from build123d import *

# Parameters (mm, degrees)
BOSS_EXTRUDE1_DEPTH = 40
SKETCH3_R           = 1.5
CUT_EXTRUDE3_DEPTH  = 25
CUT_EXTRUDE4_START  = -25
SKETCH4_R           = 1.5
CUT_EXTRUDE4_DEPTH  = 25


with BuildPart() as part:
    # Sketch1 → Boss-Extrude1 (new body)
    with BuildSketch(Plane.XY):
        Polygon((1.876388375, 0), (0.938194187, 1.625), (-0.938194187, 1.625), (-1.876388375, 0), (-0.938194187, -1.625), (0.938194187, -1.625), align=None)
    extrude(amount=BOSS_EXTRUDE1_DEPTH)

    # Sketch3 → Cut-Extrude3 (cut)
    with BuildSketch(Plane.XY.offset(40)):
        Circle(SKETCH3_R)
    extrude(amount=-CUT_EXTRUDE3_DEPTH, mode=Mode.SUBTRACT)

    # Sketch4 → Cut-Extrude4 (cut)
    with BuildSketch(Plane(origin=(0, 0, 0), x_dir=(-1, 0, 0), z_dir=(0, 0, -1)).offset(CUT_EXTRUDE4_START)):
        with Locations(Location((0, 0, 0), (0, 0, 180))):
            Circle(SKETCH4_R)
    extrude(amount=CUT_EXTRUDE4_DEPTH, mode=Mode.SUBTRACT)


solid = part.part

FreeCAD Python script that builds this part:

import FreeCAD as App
import Part
import Sketcher
from FreeCAD import Vector
Q = App.Units.Quantity


def add_polygon(sketch, points):
    """Adds a closed chain of lines whose ends are joined by coincident constraints."""
    first, n = sketch.GeometryCount, len(points)
    for a, b in zip(points, points[1:] + points[:1]):
        sketch.addGeometry(Part.LineSegment(App.Vector(*a, 0), App.Vector(*b, 0)), False)
    for i in range(n):
        sketch.addConstraint(Sketcher.Constraint("Coincident", first + i, 2, first + (i + 1) % n, 1))

doc = App.newDocument("Part")
body = doc.addObject("PartDesign::Body", "Body")

# Sketch on XY plane
sketch1 = doc.addObject("Sketcher::SketchObject", "Sketch")
body.addObject(sketch1)
sketch1.AttachmentSupport = (doc.XY_Plane, [""])
sketch1.MapMode = "FlatFace"
add_polygon(sketch1, [(1.876388, 0), (0.938194, 1.625), (-0.938194, 1.625), (-1.876388, 0), (-0.938194, -1.625), (0.938194, -1.625)])  # lines 0-5
sketch1.addConstraint([
    Sketcher.Constraint("Horizontal", 1),
    Sketcher.Constraint("Horizontal", 4),
    Sketcher.Constraint("Symmetric", 0, 2, 3, 2, -1, 1),
    Sketcher.Constraint("Symmetric", 2, 2, 5, 2, -1, 1),
    Sketcher.Constraint("PointOnObject", 2, 2, -1),
    Sketcher.Constraint("Parallel", 2, 5),
    Sketcher.Constraint("Vertical", 1, 2, 3, 2),
    Sketcher.Constraint("Angle", 0, Q("120 deg")),
    Sketcher.Constraint("DistanceY", 3, 2, 1, 2, 3.25),
    Sketcher.Constraint("DistanceX", 1, 2, 1, 1, 1.876388),
])
pad1 = doc.addObject("PartDesign::Pad", "Pad")
body.addObject(pad1)
pad1.Profile = sketch1
pad1.Length = 40

# Sketch on XY plane
sketch2 = doc.addObject("Sketcher::SketchObject", "Sketch001")
body.addObject(sketch2)
sketch2.AttachmentSupport = (doc.XY_Plane, [""])
sketch2.MapMode = "FlatFace"
sketch2.AttachmentOffset = App.Placement(Vector(0, 0, 40), App.Rotation())
sketch2.addGeometry(Part.Circle(Vector(0, 0, 0), Vector(0, 0, 1), 1.5), False)
sketch2.addConstraint([
    Sketcher.Constraint("Coincident", 0, 3, -1, 1),
    Sketcher.Constraint("Diameter", 0, 3.0),
])
pocket1 = doc.addObject("PartDesign::Pocket", "Pocket")
body.addObject(pocket1)
pocket1.Profile = sketch2
pocket1.Length = 25

# Sketch on XY plane
sketch3 = doc.addObject("Sketcher::SketchObject", "Sketch002")
body.addObject(sketch3)
sketch3.AttachmentSupport = (doc.XY_Plane, [""])
sketch3.MapMode = "FlatFace"
sketch3.AttachmentOffset = App.Placement(Vector(0, 0, 25), App.Rotation())
sketch3.addGeometry(Part.Circle(Vector(0, 0, 0), Vector(0, 0, 1), 1.5), False)
sketch3.addConstraint([
    Sketcher.Constraint("Coincident", 0, 3, -1, 1),
    Sketcher.Constraint("Diameter", 0, 3.0),
])
pocket2 = doc.addObject("PartDesign::Pocket", "Pocket001")
body.addObject(pocket2)
pocket2.Profile = sketch3
pocket2.Length = 25

doc.recompute()
